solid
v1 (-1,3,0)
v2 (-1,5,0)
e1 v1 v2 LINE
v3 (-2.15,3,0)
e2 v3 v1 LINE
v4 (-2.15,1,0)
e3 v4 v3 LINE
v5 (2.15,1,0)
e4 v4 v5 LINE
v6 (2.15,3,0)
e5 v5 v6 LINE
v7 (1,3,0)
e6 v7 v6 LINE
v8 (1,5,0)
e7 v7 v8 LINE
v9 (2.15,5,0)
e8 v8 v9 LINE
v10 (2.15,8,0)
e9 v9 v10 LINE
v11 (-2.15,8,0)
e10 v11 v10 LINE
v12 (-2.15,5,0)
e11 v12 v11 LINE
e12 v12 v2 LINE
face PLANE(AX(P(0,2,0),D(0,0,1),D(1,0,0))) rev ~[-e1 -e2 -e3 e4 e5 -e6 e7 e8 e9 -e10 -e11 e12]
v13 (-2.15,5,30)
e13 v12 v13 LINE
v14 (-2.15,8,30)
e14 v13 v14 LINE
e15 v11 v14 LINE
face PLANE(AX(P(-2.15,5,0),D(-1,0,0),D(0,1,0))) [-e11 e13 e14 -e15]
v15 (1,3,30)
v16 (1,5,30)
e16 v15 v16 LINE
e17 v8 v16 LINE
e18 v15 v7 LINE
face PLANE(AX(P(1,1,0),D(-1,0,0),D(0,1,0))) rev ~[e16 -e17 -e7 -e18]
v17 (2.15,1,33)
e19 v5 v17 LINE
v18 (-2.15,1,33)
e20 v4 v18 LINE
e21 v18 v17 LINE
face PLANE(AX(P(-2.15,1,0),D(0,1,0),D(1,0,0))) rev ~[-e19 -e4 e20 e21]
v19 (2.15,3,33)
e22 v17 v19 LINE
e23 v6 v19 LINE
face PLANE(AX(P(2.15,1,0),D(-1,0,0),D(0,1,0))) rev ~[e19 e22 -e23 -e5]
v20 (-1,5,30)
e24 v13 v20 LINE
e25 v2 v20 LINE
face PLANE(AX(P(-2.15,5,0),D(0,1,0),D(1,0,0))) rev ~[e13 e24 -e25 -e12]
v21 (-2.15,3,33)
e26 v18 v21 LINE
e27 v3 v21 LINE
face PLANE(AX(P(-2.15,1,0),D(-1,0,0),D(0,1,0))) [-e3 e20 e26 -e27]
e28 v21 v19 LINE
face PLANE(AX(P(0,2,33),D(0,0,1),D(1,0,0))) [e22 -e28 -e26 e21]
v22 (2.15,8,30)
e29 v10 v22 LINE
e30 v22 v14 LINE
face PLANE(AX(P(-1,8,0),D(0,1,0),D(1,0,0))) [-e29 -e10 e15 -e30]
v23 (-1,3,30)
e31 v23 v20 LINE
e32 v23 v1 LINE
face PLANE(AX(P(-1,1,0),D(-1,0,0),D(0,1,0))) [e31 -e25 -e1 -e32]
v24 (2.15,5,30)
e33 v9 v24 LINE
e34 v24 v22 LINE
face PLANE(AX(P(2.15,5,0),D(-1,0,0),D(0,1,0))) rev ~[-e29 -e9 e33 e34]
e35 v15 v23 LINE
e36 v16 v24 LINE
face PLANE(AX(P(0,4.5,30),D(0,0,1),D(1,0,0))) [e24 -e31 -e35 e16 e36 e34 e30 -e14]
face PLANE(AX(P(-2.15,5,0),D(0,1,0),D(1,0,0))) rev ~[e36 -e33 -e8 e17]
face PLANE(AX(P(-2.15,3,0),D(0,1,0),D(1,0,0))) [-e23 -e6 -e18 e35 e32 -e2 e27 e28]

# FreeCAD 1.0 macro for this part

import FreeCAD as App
import Part
import Sketcher

V = App.Vector
Q = App.Units.Quantity


def add_polygon(sketch, points):
    """Adds a closed chain of lines whose ends are joined by coincident constraints."""
    first, n = sketch.GeometryCount, len(points)
    for a, b in zip(points, points[1:] + points[:1]):
        sketch.addGeometry(Part.LineSegment(App.Vector(*a, 0), App.Vector(*b, 0)), False)
    for i in range(n):
        sketch.addConstraint(Sketcher.Constraint("Coincident", first + i, 2, first + (i + 1) % n, 1))

doc = App.newDocument("Part")
body = doc.addObject("PartDesign::Body", "Body")

# Sketch on XY plane
sketch1 = body.newObject("Sketcher::SketchObject", "Sketch")
sketch1.AttachmentSupport = (doc.getObject("XY_Plane"), [""])
sketch1.MapMode = "FlatFace"
add_polygon(sketch1, [(-1, 8), (-1, 1), (1, 1), (1, 8)])  # lines 0-3
sketch1.addConstraint([
    Sketcher.Constraint("Vertical", 0),
    Sketcher.Constraint("Horizontal", 1),
    Sketcher.Constraint("Vertical", 2),
    Sketcher.Constraint("Horizontal", 3),
    Sketcher.Constraint("DistanceX", 1, 1, 1, 2, Q("2 mm")),
    Sketcher.Constraint("DistanceY", 0, 2, 0, 1, Q("7 mm")),
    Sketcher.Constraint("DistanceX", 0, 2, -1, 1, Q("1 mm")),
    Sketcher.Constraint("DistanceY", -1, 1, 0, 2, Q("1 mm")),
])
pad1 = body.newObject("PartDesign::Pad", "Pad")
pad1.Profile = sketch1
pad1.Length = 30
body2 = doc.addObject("PartDesign::Body", "Body001")

# Sketch on XY plane
sketch2 = body2.newObject("Sketcher::SketchObject", "Sketch001")
sketch2.AttachmentSupport = (doc.getObject("XY_Plane001"), [""])
sketch2.MapMode = "FlatFace"
add_polygon(sketch2, [(-2.1, 3), (-2.1, 1), (2.1, 1), (2.1, 3)])  # lines 0-3
sketch2.addConstraint([
    Sketcher.Constraint("Vertical", 0),
    Sketcher.Constraint("Horizontal", 1),
    Sketcher.Constraint("Vertical", 2),
    Sketcher.Constraint("Horizontal", 3),
    Sketcher.Constraint("DistanceY", 0, 2, 0, 1, Q("2 mm")),
    Sketcher.Constraint("DistanceX", 1, 1, 1, 2, Q("4.3 mm")),
    Sketcher.Constraint("DistanceY", -1, 1, 0, 2, Q("1 mm")),
    Sketcher.Constraint("DistanceX", 0, 2, -1, 1, Q("2.15 mm")),
])
pad2 = body2.newObject("PartDesign::Pad", "Pad001")
pad2.Profile = sketch2
pad2.Length = 33
body3 = doc.addObject("PartDesign::Body", "Body002")

# Sketch on XY plane
sketch3 = body3.newObject("Sketcher::SketchObject", "Sketch002")
sketch3.AttachmentSupport = (doc.getObject("XY_Plane002"), [""])
sketch3.MapMode = "FlatFace"
add_polygon(sketch3, [(-2.1, 8), (-2.1, 5), (2.1, 5), (2.1, 8)])  # lines 0-3
sketch3.addConstraint([
    Sketcher.Constraint("Vertical", 0),
    Sketcher.Constraint("Horizontal", 1),
    Sketcher.Constraint("Vertical", 2),
    Sketcher.Constraint("Horizontal", 3),
    Sketcher.Constraint("DistanceY", 0, 2, 0, 1, Q("3 mm")),
    Sketcher.Constraint("DistanceX", 1, 1, 1, 2, Q("4.3 mm")),
    Sketcher.Constraint("DistanceY", -1, 1, 0, 2, Q("5 mm")),
    Sketcher.Constraint("DistanceX", 0, 2, -1, 1, Q("2.15 mm")),
])
pad3 = body3.newObject("PartDesign::Pad", "Pad002")
pad3.Profile = sketch3
pad3.Length = 30
doc.recompute()

boolean = body3.newObject("PartDesign::Boolean", "Boolean")
boolean.Type = "Fuse"
boolean.addObjects([body])
doc.recompute()

boolean2 = body3.newObject("PartDesign::Boolean", "Boolean001")
boolean2.Type = "Fuse"
boolean2.addObjects([body2])

doc.recompute()
